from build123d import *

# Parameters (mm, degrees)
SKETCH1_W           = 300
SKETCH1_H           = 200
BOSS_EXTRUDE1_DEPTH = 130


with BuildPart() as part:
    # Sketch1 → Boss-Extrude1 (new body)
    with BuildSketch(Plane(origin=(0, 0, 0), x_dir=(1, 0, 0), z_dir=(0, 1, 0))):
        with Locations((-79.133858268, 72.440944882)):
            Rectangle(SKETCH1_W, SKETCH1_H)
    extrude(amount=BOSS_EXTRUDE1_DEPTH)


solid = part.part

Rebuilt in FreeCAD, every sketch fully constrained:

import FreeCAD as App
import Part
import Sketcher
from FreeCAD import Vector
Q = App.Units.Quantity


def add_polygon(sketch, points):
    """Adds a closed chain of lines whose ends are joined by coincident constraints."""
    first, n = sketch.GeometryCount, len(points)
    for a, b in zip(points, points[1:] + points[:1]):
        sketch.addGeometry(Part.LineSegment(App.Vector(*a, 0), App.Vector(*b, 0)), False)
    for i in range(n):
        sketch.addConstraint(Sketcher.Constraint("Coincident", first + i, 2, first + (i + 1) % n, 1))

doc = App.newDocument("Part")
body = doc.addObject("PartDesign::Body", "Body")

sketch1 = body.newObject("Sketcher::SketchObject", "Sketch")
sketch1.AttachmentSupport = (doc.getObject("XZ_Plane"), [""])
sketch1.MapMode = "FlatFace"
add_polygon(sketch1, [(-229.133858, -172.440945), (-229.133858, 27.559055), (70.866142, 27.559055), (70.866142, -172.440945)])
sketch1.addConstraint([
    Sketcher.Constraint("Vertical", 0),
    Sketcher.Constraint("Horizontal", 1),
    Sketcher.Constraint("Vertical", 2),
    Sketcher.Constraint("Horizontal", 3),
    Sketcher.Constraint("DistanceX", 1, 1, 1, 2, Q("300 mm")),
    Sketcher.Constraint("DistanceY", 0, 1, 0, 2, Q("200 mm")),
    Sketcher.Constraint("DistanceX", 0, 2, -1, 1, Q("229.133858 mm")),
    Sketcher.Constraint("DistanceY", -1, 1, 0, 2, Q("27.559055 mm")),
])
pad1 = body.newObject("PartDesign::Pad", "Pad")
pad1.Profile = sketch1
pad1.Length = 130
pad1.Reversed = True

doc.recompute()
